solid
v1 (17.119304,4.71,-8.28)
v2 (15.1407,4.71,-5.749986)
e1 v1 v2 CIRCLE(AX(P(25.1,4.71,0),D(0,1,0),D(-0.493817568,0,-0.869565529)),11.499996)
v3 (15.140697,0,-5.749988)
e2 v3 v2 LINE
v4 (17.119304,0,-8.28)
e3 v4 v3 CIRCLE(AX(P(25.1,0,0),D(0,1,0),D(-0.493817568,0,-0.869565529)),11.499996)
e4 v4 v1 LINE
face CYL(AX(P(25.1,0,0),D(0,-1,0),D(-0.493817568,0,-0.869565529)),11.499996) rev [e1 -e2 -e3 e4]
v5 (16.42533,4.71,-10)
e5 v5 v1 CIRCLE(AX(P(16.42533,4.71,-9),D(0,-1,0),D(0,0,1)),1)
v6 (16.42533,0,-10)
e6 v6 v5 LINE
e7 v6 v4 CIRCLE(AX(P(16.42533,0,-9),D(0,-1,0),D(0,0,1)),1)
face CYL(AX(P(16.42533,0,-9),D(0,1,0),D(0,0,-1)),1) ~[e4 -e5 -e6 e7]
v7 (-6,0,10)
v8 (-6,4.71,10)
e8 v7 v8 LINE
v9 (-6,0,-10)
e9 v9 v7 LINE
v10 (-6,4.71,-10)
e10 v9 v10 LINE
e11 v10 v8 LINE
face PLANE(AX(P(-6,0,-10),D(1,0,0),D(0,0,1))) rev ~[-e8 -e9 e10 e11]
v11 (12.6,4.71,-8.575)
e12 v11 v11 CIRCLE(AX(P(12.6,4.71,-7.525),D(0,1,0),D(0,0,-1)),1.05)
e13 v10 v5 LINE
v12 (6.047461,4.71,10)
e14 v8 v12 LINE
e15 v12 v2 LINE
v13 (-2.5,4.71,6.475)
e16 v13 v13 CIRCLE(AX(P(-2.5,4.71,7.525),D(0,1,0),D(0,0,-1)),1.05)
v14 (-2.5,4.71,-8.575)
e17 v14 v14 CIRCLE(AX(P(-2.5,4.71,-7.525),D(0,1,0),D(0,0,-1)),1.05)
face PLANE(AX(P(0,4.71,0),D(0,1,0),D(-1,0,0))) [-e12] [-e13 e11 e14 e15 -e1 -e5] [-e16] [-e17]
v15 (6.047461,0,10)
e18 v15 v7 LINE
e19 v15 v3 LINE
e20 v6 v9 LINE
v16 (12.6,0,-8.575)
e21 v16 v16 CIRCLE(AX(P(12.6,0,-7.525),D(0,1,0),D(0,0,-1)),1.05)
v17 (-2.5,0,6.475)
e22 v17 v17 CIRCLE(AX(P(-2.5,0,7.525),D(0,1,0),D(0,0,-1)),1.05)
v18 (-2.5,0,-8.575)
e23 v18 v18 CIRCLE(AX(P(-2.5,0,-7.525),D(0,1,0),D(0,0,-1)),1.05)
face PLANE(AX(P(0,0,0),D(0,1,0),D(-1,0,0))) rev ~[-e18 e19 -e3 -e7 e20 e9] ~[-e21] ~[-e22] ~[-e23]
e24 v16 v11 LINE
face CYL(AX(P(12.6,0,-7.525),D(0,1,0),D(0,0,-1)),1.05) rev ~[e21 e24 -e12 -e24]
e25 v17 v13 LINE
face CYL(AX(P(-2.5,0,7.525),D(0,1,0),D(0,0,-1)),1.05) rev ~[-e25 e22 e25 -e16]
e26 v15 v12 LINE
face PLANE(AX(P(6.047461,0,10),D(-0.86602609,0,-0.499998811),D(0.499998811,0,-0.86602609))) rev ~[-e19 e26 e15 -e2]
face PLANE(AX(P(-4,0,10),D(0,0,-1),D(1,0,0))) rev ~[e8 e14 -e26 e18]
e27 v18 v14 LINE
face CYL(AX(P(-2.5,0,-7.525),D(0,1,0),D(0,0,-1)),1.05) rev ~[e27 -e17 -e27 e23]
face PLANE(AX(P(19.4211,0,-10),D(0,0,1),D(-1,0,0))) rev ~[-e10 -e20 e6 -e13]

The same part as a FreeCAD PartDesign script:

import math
import FreeCAD as App
import Part
import Sketcher
Q = App.Units.Quantity


def edges_at(feature, points):
    """Names of the edges that pass closest to the given points."""
    edges = feature.Shape.Edges
    near = lambda p: min(range(len(edges)), key=lambda i: edges[i].distToShape(Part.Vertex(*p))[0])
    return sorted({f"Edge{near(p) + 1}" for p in points})

doc = App.newDocument("Part")
body = doc.addObject("PartDesign::Body", "Body")

sketch1 = doc.addObject("Sketcher::SketchObject", "Sketch")
body.addObject(sketch1)
sketch1.AttachmentSupport = (doc.XZ_Plane, [""])
sketch1.MapMode = "FlatFace"
sketch1.addGeometry([
    Part.LineSegment(App.Vector(19, -10, 0), App.Vector(-6, -10, 0)),
    Part.LineSegment(App.Vector(-6, -10, 0), App.Vector(-6, 10, 0)),
    Part.LineSegment(App.Vector(-6, 10, 0), App.Vector(19, 10, 0)),
    Part.ArcOfCircle(Part.Circle(App.Vector(25, 0, 0), App.Vector(0, 0, 1), 11), math.radians(120), math.radians(240)),
], False)
sketch1.addConstraint([
    Sketcher.Constraint("Coincident", 0, 2, 1, 1),
    Sketcher.Constraint("Coincident", 1, 2, 2, 1),
    Sketcher.Constraint("Coincident", 2, 2, 3, 1),
    Sketcher.Constraint("Coincident", 3, 2, 0, 1),
    Sketcher.Constraint("Horizontal", 0),
    Sketcher.Constraint("Vertical", 1),
    Sketcher.Constraint("Horizontal", 2),
    Sketcher.Constraint("Symmetric", 2, 2, 3, 2, -1),
    Sketcher.Constraint("Radius", 3, 11.5),
    Sketcher.Constraint("DistanceY", 1, 1, 1, 2, 20.0),
    Sketcher.Constraint("DistanceX", 0, 2, -1, 1, 6.0),
    Sketcher.Constraint("DistanceX", -1, 1, 3, 3, 25.1),
])
pad1 = doc.addObject("PartDesign::Pad", "Pad")
body.addObject(pad1)
pad1.Profile = sketch1
pad1.Length = 4.71
pad1.Reversed = True
doc.recompute()

fillet = doc.addObject("PartDesign::Fillet", "Fillet")
body.addObject(fillet)
fillet.Base = (pad1, edges_at(pad1, [(19.421, 2.355, -10), (19.421, 2.355, 10)]))
fillet.Radius = 1

sketch2 = doc.addObject("Sketcher::SketchObject", "Sketch001")
body.addObject(sketch2)
sketch2.AttachmentSupport = (doc.XZ_Plane, [""])
sketch2.MapMode = "FlatFace"
sketch2.addGeometry([
    Part.Circle(App.Vector(-2.5, -7.5, 0), App.Vector(0, 0, 1), 1.1),
    Part.Circle(App.Vector(-2.5, 7.5, 0), App.Vector(0, 0, 1), 1.1),
    Part.Circle(App.Vector(12.6, 7.5, 0), App.Vector(0, 0, 1), 1.1),
    Part.Circle(App.Vector(12.6, -7.5, 0), App.Vector(0, 0, 1), 1.1),
], False)
sketch2.addConstraint([
    Sketcher.Constraint("Equal", 0, 1),
    Sketcher.Constraint("Equal", 1, 2),
    Sketcher.Constraint("Equal", 2, 3),
    Sketcher.Constraint("Symmetric", 0, 3, 1, 3, -1),
    Sketcher.Constraint("Symmetric", 2, 3, 3, 3, -1),
    Sketcher.Constraint("Horizontal", 1, 3, 2, 3),
    Sketcher.Constraint("Diameter", 0, 2.1),
    Sketcher.Constraint("DistanceX", 0, 3, -1, 1, 2.5),
    Sketcher.Constraint("DistanceX", -1, 1, 2, 3, 12.6),
    Sketcher.Constraint("DistanceY", 0, 3, 1, 3, 15.05),
])
doc.recompute()
hole = doc.addObject("PartDesign::Hole", "Hole")
body.addObject(hole)
hole.Profile = sketch2
hole.ThreadType = "None"
hole.Diameter = 2.1
hole.DepthType = "ThroughAll"

sketch3 = doc.addObject("Sketcher::SketchObject", "Sketch002")
body.addObject(sketch3)
sketch3.AttachmentSupport = (doc.XZ_Plane, [""])
sketch3.MapMode = "FlatFace"
sketch3.addGeometry([
    Part.LineSegment(App.Vector(16.4, 10, 0), App.Vector(6, 10, 0)),
    Part.LineSegment(App.Vector(6, 10, 0), App.Vector(15.1, -5.7, 0)),
    Part.ArcOfCircle(Part.Circle(App.Vector(25.1, 0, 0), App.Vector(0, 0, 1), 11.5), math.radians(134), math.radians(210)),
    Part.ArcOfCircle(Part.Circle(App.Vector(16.4, 9, 0), App.Vector(0, 0, 1), 1), math.radians(-46), math.radians(90)),
], False)
sketch3.addConstraint([
    Sketcher.Constraint("Coincident", 0, 2, 1, 1),
    Sketcher.Constraint("Tangent", 1, 2, 2, 2),
    Sketcher.Constraint("Tangent", 2, 1, 3, 1),
    Sketcher.Constraint("Tangent", 3, 2, 0, 1),
    Sketcher.Constraint("Horizontal", 0),
    Sketcher.Constraint("PointOnObject", 2, 3, -1),
    Sketcher.Constraint("Angle", 1, Q("-60 deg")),
    Sketcher.Constraint("Radius", 3, 1.0),
    Sketcher.Constraint("Radius", 2, 11.5),
    Sketcher.Constraint("DistanceY", -1, 1, 3, 3, 9.0),
    Sketcher.Constraint("DistanceX", -1, 1, 2, 3, 25.1),
])
pocket1 = doc.addObject("PartDesign::Pocket", "Pocket")
body.addObject(pocket1)
pocket1.Profile = sketch3
pocket1.Type = "UpToFirst"

doc.recompute()
